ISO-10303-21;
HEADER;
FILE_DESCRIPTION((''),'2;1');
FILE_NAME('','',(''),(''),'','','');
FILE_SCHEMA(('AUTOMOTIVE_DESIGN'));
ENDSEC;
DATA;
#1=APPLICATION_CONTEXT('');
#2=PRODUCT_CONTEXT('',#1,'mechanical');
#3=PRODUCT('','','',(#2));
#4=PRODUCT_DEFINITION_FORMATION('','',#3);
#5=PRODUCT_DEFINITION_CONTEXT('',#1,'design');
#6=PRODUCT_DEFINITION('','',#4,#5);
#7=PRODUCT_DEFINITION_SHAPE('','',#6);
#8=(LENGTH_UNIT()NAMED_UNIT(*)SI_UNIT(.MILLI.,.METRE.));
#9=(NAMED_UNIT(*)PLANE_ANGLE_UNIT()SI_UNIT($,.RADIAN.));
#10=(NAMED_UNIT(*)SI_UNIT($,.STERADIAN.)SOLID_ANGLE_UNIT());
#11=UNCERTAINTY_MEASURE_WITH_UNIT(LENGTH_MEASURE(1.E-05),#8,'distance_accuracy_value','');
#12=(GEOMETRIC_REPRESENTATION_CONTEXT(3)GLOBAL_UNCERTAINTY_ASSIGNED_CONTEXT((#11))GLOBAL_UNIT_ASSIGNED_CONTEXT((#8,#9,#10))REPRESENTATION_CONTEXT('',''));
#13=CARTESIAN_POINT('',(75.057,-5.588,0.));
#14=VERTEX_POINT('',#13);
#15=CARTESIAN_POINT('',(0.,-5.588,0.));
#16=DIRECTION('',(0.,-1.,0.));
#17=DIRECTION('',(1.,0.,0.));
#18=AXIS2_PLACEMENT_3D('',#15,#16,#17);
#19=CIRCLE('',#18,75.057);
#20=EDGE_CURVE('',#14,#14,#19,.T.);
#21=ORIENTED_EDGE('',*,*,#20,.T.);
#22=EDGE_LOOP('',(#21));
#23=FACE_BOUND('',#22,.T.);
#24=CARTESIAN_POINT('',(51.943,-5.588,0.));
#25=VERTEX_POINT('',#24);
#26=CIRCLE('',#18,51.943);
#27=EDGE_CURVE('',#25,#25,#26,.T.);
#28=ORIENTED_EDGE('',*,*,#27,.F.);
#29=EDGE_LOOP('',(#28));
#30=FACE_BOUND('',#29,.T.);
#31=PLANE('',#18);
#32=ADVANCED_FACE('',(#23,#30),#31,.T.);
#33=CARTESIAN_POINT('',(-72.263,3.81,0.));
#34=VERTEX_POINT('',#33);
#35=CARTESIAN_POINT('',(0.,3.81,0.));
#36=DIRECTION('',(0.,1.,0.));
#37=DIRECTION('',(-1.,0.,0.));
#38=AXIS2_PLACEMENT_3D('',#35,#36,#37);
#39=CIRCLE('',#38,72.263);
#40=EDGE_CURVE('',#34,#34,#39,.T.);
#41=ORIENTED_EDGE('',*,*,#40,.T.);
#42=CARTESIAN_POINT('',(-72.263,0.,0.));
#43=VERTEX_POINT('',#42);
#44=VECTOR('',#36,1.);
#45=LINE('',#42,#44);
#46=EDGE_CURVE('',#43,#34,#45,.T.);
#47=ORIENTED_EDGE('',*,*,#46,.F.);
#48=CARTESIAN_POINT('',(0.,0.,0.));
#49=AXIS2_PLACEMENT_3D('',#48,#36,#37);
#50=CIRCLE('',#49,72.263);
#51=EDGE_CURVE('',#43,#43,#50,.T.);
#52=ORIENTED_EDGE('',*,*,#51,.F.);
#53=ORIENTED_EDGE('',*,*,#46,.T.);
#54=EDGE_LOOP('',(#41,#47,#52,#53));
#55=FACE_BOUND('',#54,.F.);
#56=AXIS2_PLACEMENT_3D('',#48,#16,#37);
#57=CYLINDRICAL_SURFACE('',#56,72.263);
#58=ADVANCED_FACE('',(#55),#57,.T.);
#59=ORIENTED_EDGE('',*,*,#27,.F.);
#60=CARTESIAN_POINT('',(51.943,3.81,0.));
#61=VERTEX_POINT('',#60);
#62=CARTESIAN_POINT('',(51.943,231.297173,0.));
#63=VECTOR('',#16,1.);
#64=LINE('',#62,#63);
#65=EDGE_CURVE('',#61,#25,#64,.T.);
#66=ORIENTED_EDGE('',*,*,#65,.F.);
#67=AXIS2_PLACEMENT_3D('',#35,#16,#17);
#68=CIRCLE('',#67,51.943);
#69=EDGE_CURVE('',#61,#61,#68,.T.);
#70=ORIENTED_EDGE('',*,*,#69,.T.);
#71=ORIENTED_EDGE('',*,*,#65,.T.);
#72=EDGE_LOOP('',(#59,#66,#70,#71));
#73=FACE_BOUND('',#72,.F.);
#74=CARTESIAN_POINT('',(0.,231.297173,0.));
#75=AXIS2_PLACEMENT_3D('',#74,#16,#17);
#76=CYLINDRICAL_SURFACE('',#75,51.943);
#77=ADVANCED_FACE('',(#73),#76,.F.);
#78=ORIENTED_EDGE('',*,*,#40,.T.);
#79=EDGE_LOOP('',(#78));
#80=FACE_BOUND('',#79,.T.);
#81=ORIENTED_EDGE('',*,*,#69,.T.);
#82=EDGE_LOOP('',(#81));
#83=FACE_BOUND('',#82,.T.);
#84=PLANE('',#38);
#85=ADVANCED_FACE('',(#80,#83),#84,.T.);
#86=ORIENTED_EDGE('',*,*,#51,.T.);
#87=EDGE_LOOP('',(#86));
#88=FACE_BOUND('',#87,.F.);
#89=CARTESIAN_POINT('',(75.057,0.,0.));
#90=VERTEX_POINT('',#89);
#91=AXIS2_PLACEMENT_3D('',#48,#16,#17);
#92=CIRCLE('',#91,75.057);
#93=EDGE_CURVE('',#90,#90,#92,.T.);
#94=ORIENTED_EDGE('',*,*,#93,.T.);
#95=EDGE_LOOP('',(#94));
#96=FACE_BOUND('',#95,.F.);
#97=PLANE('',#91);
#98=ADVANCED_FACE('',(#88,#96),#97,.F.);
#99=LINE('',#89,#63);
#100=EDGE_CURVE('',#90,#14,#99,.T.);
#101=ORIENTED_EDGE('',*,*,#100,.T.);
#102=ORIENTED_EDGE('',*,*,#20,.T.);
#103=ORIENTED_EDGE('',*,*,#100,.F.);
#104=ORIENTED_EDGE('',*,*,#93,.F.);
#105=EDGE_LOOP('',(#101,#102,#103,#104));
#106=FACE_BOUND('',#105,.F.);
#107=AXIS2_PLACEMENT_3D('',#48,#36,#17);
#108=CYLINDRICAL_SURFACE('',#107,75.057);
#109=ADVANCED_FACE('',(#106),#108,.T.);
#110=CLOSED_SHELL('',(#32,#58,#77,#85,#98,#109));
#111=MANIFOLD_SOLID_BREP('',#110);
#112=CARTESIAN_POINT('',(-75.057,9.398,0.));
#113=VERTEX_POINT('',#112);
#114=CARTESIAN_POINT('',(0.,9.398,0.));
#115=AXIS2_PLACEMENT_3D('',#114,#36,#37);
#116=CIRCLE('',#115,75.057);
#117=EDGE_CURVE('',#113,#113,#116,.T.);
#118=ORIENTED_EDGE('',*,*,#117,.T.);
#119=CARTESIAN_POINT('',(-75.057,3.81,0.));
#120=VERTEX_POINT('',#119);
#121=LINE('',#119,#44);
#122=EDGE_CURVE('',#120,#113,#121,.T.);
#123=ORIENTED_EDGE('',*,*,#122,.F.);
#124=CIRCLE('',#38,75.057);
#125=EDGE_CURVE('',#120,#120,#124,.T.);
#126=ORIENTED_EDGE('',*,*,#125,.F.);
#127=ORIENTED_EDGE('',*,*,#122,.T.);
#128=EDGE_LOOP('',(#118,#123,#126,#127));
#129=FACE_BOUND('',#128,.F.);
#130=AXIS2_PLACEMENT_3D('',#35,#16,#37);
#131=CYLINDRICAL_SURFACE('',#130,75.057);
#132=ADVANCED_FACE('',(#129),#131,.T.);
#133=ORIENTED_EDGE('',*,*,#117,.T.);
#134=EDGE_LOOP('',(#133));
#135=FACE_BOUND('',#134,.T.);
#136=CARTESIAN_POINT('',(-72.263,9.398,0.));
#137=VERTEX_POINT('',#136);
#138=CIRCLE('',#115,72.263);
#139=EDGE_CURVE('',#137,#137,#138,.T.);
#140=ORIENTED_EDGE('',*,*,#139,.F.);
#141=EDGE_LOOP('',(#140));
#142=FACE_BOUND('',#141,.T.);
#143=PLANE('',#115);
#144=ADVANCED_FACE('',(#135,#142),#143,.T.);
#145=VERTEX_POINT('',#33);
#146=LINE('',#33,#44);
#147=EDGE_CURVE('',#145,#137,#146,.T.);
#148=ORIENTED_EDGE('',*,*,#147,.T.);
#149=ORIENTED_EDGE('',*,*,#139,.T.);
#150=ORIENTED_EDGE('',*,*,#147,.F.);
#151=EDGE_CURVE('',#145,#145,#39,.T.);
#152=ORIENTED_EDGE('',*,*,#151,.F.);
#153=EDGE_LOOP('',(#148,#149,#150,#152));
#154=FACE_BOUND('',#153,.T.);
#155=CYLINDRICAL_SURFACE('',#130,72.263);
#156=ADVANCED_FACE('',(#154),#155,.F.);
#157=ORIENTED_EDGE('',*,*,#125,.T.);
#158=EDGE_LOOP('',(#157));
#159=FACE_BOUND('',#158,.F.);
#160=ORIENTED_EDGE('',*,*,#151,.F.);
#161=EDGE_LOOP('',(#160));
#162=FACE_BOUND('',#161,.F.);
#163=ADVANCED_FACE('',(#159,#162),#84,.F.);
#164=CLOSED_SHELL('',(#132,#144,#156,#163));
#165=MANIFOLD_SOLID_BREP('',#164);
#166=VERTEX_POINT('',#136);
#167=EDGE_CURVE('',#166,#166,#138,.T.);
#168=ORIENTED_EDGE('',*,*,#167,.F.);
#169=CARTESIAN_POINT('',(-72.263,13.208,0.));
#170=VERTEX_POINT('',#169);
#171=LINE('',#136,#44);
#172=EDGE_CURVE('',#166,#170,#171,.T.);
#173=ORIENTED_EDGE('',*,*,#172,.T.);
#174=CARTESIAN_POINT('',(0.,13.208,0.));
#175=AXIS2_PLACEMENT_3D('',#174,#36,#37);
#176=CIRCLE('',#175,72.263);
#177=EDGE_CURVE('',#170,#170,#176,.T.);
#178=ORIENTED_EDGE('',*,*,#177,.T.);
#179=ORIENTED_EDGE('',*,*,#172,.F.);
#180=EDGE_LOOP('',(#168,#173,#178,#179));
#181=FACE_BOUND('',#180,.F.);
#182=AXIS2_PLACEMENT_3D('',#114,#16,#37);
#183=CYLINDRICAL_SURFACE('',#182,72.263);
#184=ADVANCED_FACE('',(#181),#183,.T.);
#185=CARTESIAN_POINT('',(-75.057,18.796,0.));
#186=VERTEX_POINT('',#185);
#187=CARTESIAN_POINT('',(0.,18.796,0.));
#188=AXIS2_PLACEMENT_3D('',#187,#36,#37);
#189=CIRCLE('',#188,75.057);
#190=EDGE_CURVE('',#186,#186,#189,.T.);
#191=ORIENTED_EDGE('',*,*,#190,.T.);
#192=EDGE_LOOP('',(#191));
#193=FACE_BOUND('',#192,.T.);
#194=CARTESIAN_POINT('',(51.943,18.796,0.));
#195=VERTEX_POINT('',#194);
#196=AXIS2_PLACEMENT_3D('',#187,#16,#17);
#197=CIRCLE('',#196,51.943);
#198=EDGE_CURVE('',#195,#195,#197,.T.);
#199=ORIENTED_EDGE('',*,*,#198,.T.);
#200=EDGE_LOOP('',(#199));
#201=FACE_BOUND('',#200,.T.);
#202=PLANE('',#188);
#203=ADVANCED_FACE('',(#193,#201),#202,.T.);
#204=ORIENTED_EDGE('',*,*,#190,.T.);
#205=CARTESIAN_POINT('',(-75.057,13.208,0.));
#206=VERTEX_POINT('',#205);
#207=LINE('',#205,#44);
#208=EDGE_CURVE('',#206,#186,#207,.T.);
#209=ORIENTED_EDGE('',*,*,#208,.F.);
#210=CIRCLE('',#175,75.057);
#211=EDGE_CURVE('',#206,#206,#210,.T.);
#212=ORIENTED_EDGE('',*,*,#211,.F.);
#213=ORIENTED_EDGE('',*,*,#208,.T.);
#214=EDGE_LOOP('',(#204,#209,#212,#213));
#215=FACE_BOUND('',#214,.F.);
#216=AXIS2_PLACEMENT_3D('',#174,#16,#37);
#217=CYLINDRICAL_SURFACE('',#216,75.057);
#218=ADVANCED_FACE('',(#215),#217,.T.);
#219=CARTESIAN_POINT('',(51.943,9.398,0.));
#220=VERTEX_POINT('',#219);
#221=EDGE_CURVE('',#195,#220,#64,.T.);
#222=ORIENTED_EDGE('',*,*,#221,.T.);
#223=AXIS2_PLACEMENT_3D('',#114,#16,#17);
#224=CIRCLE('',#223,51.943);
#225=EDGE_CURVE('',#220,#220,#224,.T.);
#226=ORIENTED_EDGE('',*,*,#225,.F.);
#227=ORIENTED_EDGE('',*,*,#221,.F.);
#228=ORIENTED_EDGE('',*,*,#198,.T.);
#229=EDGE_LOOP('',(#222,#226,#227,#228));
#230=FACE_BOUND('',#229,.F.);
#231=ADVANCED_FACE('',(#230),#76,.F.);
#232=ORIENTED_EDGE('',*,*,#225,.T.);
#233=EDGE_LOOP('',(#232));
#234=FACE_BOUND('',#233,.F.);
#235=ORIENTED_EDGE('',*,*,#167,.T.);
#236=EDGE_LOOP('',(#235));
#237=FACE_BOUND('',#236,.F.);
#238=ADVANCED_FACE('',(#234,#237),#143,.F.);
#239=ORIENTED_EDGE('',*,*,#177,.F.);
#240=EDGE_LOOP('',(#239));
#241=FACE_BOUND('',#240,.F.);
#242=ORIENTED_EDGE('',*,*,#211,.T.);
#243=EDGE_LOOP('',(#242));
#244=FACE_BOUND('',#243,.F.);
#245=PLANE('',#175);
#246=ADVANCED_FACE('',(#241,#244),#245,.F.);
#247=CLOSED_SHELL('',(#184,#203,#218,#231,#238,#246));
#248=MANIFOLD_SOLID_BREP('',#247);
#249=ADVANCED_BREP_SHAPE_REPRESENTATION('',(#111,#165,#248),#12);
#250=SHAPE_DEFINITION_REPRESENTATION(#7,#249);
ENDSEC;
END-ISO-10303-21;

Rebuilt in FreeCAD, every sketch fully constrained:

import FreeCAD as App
import Part
import Sketcher
from FreeCAD import Vector
Q = App.Units.Quantity

doc = App.newDocument("Part")
params = doc.addObject("Spreadsheet::Sheet", "Params")
for row, (alias, value) in enumerate([
    ("sketch1_diameter", "5.91 in"),
    ("pad1_length", "0.22 in"),
    ("sketch2_diameter", "5.69 in"),
    ("pad2_length", "0.15 in"),
    ("sketch3_diameter", "4.09 in"),
    ("hole_diameter", "4.09 in"),
    ("sketch4_diameter", "5.91 in"),
    ("sketch4_diameter2", "5.69 in"),
    ("pad3_length", "0.22 in"),
    ("sketch5_diameter", "5.69 in"),
    ("pad4_length", "0.15 in"),
    ("sketch6_diameter", "5.91 in"),
    ("pad5_length", "0.22 in"),
    ("sketch7_diameter", "4.09 in"),
    ("hole2_diameter", "4.09 in"),
], start=1):
    params.set(f"A{row}", alias)
    params.set(f"B{row}", "=" + value)
    params.setAlias(f"B{row}", alias)

body = doc.addObject("PartDesign::Body", "Body")

# Sketch on XZ plane
sketch1 = body.newObject("Sketcher::SketchObject", "Sketch")
sketch1.AttachmentSupport = (doc.getObject("XZ_Plane"), [""])
sketch1.MapMode = "FlatFace"
sketch1.addGeometry(Part.Circle(Vector(0, 0, 0), Vector(0, 0, 1), 75.057), False)
sketch1.addConstraint(Sketcher.Constraint("Coincident", 0, 3, -1, 1))
sketch1.addConstraint(Sketcher.Constraint("Diameter", 0, Q("5.91 in")))
sketch1.setExpression("Constraints[1]", "Params.sketch1_diameter")
pad1 = body.newObject("PartDesign::Pad", "Pad")
pad1.Profile = sketch1
pad1.setExpression("Length", "Params.pad1_length")

# Sketch on XZ plane
sketch2 = body.newObject("Sketcher::SketchObject", "Sketch001")
sketch2.AttachmentSupport = (doc.getObject("XZ_Plane"), [""])
sketch2.MapMode = "FlatFace"
sketch2.addGeometry(Part.Circle(Vector(0, 0, 0), Vector(0, 0, 1), 72.263), False)
sketch2.addConstraint(Sketcher.Constraint("Coincident", 0, 3, -1, 1))
sketch2.addConstraint(Sketcher.Constraint("Diameter", 0, Q("5.69 in")))
sketch2.setExpression("Constraints[1]", "Params.sketch2_diameter")
pad2 = body.newObject("PartDesign::Pad", "Pad001")
pad2.Profile = sketch2
pad2.setExpression("Length", "Params.pad2_length")
pad2.Reversed = True

# Sketch on XZ plane
sketch3 = body.newObject("Sketcher::SketchObject", "Sketch002")
sketch3.AttachmentSupport = (doc.getObject("XZ_Plane"), [""])
sketch3.MapMode = "FlatFace"
sketch3.AttachmentOffset = App.Placement(Vector(0, 0, -0.74 * 25.4), App.Rotation())
sketch3.addGeometry(Part.Circle(Vector(0, 0, 0), Vector(0, 0, 1), 51.943), False)
sketch3.addConstraint(Sketcher.Constraint("Coincident", 0, 3, -1, 1))
sketch3.addConstraint(Sketcher.Constraint("Diameter", 0, Q("4.09 in")))
sketch3.setExpression("Constraints[1]", "Params.sketch3_diameter")
doc.recompute()
hole = body.newObject("PartDesign::Hole", "Hole")
hole.Profile = sketch3
hole.ThreadType = "None"
hole.setExpression("Diameter", "Params.hole_diameter")
hole.DepthType = "ThroughAll"
hole.Reversed = True
body2 = doc.addObject("PartDesign::Body", "Body001")

# Sketch on XZ plane
sketch4 = body2.newObject("Sketcher::SketchObject", "Sketch003")
sketch4.AttachmentSupport = (doc.getObject("XZ_Plane001"), [""])
sketch4.MapMode = "FlatFace"
sketch4.AttachmentOffset = App.Placement(Vector(0, 0, -0.15 * 25.4), App.Rotation())
sketch4.addGeometry(Part.Circle(Vector(0, 0, 0), Vector(0, 0, 1), 75.057), False)
sketch4.addGeometry(Part.Circle(Vector(0, 0, 0), Vector(0, 0, 1), 72.263), False)
sketch4.addConstraint(Sketcher.Constraint("Coincident", 0, 3, -1, 1))
sketch4.addConstraint(Sketcher.Constraint("Coincident", 1, 3, -1, 1))
sketch4.addConstraint(Sketcher.Constraint("Diameter", 0, Q("5.91 in")))
sketch4.addConstraint(Sketcher.Constraint("Diameter", 1, Q("5.69 in")))
sketch4.setExpression("Constraints[2]", "Params.sketch4_diameter")
sketch4.setExpression("Constraints[3]", "Params.sketch4_diameter2")
pad3 = body2.newObject("PartDesign::Pad", "Pad002")
pad3.Profile = sketch4
pad3.setExpression("Length", "Params.pad3_length")
pad3.Reversed = True
body3 = doc.addObject("PartDesign::Body", "Body002")

# Sketch on XZ plane
sketch5 = body3.newObject("Sketcher::SketchObject", "Sketch004")
sketch5.AttachmentSupport = (doc.getObject("XZ_Plane002"), [""])
sketch5.MapMode = "FlatFace"
sketch5.AttachmentOffset = App.Placement(Vector(0, 0, -0.37 * 25.4), App.Rotation())
sketch5.addGeometry(Part.Circle(Vector(0, 0, 0), Vector(0, 0, 1), 72.263), False)
sketch5.addConstraint(Sketcher.Constraint("Coincident", 0, 3, -1, 1))
sketch5.addConstraint(Sketcher.Constraint("Diameter", 0, Q("5.69 in")))
sketch5.setExpression("Constraints[1]", "Params.sketch5_diameter")
pad4 = body3.newObject("PartDesign::Pad", "Pad003")
pad4.Profile = sketch5
pad4.setExpression("Length", "Params.pad4_length")
pad4.Reversed = True

# Sketch on XZ plane
sketch6 = body3.newObject("Sketcher::SketchObject", "Sketch005")
sketch6.AttachmentSupport = (doc.getObject("XZ_Plane002"), [""])
sketch6.MapMode = "FlatFace"
sketch6.AttachmentOffset = App.Placement(Vector(0, 0, -0.52 * 25.4), App.Rotation())
sketch6.addGeometry(Part.Circle(Vector(0, 0, 0), Vector(0, 0, 1), 75.057), False)
sketch6.addConstraint(Sketcher.Constraint("Coincident", 0, 3, -1, 1))
sketch6.addConstraint(Sketcher.Constraint("Diameter", 0, Q("5.91 in")))
sketch6.setExpression("Constraints[1]", "Params.sketch6_diameter")
pad5 = body3.newObject("PartDesign::Pad", "Pad004")
pad5.Profile = sketch6
pad5.setExpression("Length", "Params.pad5_length")
pad5.Reversed = True

# Sketch on XZ plane
sketch7 = body3.newObject("Sketcher::SketchObject", "Sketch006")
sketch7.AttachmentSupport = (doc.getObject("XZ_Plane002"), [""])
sketch7.MapMode = "FlatFace"
sketch7.AttachmentOffset = App.Placement(Vector(0, 0, -0.74 * 25.4), App.Rotation())
sketch7.addGeometry(Part.Circle(Vector(0, 0, 0), Vector(0, 0, 1), 51.943), False)
sketch7.addConstraint(Sketcher.Constraint("Coincident", 0, 3, -1, 1))
sketch7.addConstraint(Sketcher.Constraint("Diameter", 0, Q("4.09 in")))
sketch7.setExpression("Constraints[1]", "Params.sketch7_diameter")
doc.recompute()
hole2 = body3.newObject("PartDesign::Hole", "Hole001")
hole2.Profile = sketch7
hole2.ThreadType = "None"
hole2.setExpression("Diameter", "Params.hole2_diameter")
hole2.DepthType = "ThroughAll"
hole2.Reversed = True

doc.recompute()
